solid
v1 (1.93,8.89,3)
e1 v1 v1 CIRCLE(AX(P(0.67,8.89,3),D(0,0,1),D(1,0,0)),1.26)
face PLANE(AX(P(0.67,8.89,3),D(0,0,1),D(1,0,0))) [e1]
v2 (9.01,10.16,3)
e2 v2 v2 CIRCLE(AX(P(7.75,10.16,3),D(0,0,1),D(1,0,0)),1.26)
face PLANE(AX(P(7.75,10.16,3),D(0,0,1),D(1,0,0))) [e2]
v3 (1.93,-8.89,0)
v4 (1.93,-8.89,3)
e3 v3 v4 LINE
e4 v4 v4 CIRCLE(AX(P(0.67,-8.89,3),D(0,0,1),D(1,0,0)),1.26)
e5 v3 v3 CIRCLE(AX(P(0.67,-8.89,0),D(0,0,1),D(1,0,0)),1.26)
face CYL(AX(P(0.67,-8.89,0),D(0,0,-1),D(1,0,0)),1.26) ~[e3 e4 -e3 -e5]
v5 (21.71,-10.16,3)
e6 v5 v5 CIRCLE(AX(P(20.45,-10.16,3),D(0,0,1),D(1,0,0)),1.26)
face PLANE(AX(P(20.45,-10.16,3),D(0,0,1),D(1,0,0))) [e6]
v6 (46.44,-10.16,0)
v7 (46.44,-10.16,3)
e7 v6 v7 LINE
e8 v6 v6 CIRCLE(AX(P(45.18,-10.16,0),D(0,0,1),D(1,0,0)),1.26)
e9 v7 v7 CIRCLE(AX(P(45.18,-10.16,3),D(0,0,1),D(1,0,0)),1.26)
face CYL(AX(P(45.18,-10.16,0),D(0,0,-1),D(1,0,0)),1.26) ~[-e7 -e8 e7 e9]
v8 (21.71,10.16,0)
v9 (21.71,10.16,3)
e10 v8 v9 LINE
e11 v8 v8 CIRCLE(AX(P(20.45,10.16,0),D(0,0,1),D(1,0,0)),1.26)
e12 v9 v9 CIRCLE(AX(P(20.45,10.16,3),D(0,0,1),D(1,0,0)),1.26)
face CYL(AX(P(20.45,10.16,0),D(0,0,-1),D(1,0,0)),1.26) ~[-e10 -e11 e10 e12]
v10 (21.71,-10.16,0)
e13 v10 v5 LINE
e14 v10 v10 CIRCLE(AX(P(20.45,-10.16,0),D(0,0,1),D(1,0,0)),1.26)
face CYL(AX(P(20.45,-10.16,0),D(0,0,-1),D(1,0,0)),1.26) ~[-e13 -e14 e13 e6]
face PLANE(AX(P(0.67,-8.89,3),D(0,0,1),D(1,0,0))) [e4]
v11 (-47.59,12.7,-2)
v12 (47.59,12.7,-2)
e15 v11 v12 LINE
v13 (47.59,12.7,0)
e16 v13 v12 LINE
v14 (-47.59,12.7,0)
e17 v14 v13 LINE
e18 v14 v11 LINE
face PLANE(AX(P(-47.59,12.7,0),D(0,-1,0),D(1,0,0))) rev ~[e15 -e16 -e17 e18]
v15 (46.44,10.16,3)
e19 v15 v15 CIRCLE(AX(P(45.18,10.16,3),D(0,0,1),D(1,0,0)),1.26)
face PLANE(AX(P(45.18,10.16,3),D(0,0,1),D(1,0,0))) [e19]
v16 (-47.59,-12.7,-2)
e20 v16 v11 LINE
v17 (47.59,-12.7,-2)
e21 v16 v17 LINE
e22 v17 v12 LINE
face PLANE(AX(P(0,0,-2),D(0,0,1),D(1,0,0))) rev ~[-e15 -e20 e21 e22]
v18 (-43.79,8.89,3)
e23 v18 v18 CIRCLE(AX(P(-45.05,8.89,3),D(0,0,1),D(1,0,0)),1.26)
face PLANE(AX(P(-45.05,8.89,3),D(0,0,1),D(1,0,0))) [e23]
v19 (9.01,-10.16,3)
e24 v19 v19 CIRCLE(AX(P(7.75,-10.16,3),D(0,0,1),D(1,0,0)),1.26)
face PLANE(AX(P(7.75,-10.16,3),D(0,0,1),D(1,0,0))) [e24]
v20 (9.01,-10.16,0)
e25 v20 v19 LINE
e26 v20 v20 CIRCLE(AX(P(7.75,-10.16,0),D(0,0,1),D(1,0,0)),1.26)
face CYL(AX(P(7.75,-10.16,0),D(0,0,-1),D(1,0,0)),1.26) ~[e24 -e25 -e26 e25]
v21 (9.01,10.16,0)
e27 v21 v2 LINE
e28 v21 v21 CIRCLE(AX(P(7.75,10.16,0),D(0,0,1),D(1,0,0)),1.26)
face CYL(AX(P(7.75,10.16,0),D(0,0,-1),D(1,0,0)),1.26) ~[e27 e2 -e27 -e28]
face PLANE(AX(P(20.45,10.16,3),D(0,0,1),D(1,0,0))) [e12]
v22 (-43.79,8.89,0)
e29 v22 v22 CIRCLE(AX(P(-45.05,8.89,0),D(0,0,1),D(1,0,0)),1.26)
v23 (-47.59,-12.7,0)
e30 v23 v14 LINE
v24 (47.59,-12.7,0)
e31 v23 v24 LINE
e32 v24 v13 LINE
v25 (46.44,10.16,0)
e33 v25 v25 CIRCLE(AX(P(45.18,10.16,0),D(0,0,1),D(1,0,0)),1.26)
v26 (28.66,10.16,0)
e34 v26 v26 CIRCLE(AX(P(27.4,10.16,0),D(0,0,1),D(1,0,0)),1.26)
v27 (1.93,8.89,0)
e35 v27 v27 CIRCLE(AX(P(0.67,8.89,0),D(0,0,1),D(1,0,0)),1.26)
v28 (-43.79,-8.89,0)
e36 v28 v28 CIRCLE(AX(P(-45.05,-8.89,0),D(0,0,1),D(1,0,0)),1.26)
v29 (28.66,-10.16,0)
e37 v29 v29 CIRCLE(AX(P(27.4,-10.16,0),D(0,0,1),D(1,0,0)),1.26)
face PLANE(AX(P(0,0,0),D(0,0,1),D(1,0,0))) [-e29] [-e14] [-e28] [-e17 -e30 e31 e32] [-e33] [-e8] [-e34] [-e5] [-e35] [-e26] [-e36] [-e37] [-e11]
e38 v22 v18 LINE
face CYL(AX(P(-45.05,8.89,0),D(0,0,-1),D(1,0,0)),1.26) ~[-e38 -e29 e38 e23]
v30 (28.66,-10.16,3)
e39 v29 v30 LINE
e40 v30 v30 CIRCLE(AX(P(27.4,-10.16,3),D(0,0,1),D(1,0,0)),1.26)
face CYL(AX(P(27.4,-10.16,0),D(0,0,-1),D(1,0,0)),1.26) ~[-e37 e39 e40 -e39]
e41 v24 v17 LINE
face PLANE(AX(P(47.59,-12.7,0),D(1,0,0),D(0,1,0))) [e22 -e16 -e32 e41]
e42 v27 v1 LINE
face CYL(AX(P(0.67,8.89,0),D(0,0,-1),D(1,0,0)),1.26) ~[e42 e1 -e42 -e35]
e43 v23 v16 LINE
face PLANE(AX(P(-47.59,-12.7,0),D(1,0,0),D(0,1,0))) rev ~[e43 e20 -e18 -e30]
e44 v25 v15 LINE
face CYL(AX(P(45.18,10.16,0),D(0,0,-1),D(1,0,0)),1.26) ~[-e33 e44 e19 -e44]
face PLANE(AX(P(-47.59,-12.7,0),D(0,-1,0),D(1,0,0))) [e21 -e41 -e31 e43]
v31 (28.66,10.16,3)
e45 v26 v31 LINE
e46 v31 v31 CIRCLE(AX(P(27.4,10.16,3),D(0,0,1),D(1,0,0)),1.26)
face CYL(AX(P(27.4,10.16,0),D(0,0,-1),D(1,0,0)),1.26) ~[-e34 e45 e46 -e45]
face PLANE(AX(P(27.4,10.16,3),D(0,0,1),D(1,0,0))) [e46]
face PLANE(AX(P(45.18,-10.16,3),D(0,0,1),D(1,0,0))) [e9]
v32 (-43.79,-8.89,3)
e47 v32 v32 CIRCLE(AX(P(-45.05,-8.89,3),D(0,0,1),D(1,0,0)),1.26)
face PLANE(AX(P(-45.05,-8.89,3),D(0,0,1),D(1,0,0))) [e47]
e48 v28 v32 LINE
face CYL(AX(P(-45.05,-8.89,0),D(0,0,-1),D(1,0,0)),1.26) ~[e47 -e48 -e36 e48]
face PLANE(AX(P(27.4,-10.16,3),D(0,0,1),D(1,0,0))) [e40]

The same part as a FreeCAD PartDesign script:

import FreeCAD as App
import Part
import Sketcher

V = App.Vector
Q = App.Units.Quantity


def add_polygon(sketch, points):
    """Adds a closed chain of lines whose ends are joined by coincident constraints."""
    first, n = sketch.GeometryCount, len(points)
    for a, b in zip(points, points[1:] + points[:1]):
        sketch.addGeometry(Part.LineSegment(App.Vector(*a, 0), App.Vector(*b, 0)), False)
    for i in range(n):
        sketch.addConstraint(Sketcher.Constraint("Coincident", first + i, 2, first + (i + 1) % n, 1))

doc = App.newDocument("Part")
body = doc.addObject("PartDesign::Body", "Body")

# Sketch on XY plane
sketch1 = doc.addObject("Sketcher::SketchObject", "Sketch")
body.addObject(sketch1)
sketch1.AttachmentSupport = (doc.XY_Plane, [""])
sketch1.MapMode = "FlatFace"
add_polygon(sketch1, [(-48, 13), (-48, -13), (48, -13), (48, 13)])  # lines 0-3
sketch1.addConstraint(Sketcher.Constraint("Vertical", 0))
sketch1.addConstraint(Sketcher.Constraint("Horizontal", 1))
sketch1.addConstraint(Sketcher.Constraint("Vertical", 2))
sketch1.addConstraint(Sketcher.Constraint("Horizontal", 3))
sketch1.addConstraint(Sketcher.Constraint("Symmetric", 0, 2, 2, 2, -1, 1))
sketch1.addConstraint(Sketcher.Constraint("DistanceY", 0, 2, 0, 1, Q("25.4 mm")))
sketch1.addConstraint(Sketcher.Constraint("DistanceX", 1, 1, 1, 2, Q("95.18 mm")))
pad1 = doc.addObject("PartDesign::Pad", "Pad")
body.addObject(pad1)
pad1.Profile = sketch1
pad1.Length = 2
pad1.Reversed = True

# Sketch on XY plane
sketch2 = doc.addObject("Sketcher::SketchObject", "Sketch001")
body.addObject(sketch2)
sketch2.AttachmentSupport = (doc.XY_Plane, [""])
sketch2.MapMode = "FlatFace"
sketch2.addGeometry(Part.Circle(V(-45, 8.9, 0), V(0, 0, 1), 1.3), False)
sketch2.addGeometry(Part.Circle(V(0.7, 8.9, 0), V(0, 0, 1), 1.3), False)
sketch2.addGeometry(Part.Circle(V(-45, -8.9, 0), V(0, 0, 1), 1.3), False)
sketch2.addGeometry(Part.Circle(V(0.7, -8.9, 0), V(0, 0, 1), 1.3), False)
sketch2.addGeometry(Part.Circle(V(27.4, 10.2, 0), V(0, 0, 1), 1.3), False)
sketch2.addGeometry(Part.Circle(V(27.4, -10.2, 0), V(0, 0, 1), 1.3), False)
sketch2.addGeometry(Part.Circle(V(45.2, 10.2, 0), V(0, 0, 1), 1.3), False)
sketch2.addGeometry(Part.Circle(V(45.2, -10.2, 0), V(0, 0, 1), 1.3), False)
sketch2.addGeometry(Part.Circle(V(7.8, 10.2, 0), V(0, 0, 1), 1.3), False)
sketch2.addGeometry(Part.Circle(V(20.4, 10.2, 0), V(0, 0, 1), 1.3), False)
sketch2.addGeometry(Part.Circle(V(7.8, -10.2, 0), V(0, 0, 1), 1.3), False)
sketch2.addGeometry(Part.Circle(V(20.4, -10.2, 0), V(0, 0, 1), 1.3), False)
sketch2.addConstraint(Sketcher.Constraint("Equal", 0, 1))
sketch2.addConstraint(Sketcher.Constraint("Equal", 1, 2))
sketch2.addConstraint(Sketcher.Constraint("Equal", 2, 3))
sketch2.addConstraint(Sketcher.Constraint("Equal", 3, 4))
sketch2.addConstraint(Sketcher.Constraint("Equal", 4, 5))
sketch2.addConstraint(Sketcher.Constraint("Equal", 5, 6))
sketch2.addConstraint(Sketcher.Constraint("Equal", 6, 7))
sketch2.addConstraint(Sketcher.Constraint("Equal", 7, 8))
sketch2.addConstraint(Sketcher.Constraint("Equal", 8, 9))
sketch2.addConstraint(Sketcher.Constraint("Equal", 9, 10))
sketch2.addConstraint(Sketcher.Constraint("Equal", 10, 11))
sketch2.addConstraint(Sketcher.Constraint("Symmetric", 0, 3, 2, 3, -1))
sketch2.addConstraint(Sketcher.Constraint("Symmetric", 1, 3, 3, 3, -1))
sketch2.addConstraint(Sketcher.Constraint("Symmetric", 4, 3, 5, 3, -1))
sketch2.addConstraint(Sketcher.Constraint("Symmetric", 6, 3, 7, 3, -1))
sketch2.addConstraint(Sketcher.Constraint("Symmetric", 8, 3, 10, 3, -1))
sketch2.addConstraint(Sketcher.Constraint("Symmetric", 9, 3, 11, 3, -1))
sketch2.addConstraint(Sketcher.Constraint("Horizontal", 0, 3, 1, 3))
sketch2.addConstraint(Sketcher.Constraint("Horizontal", 4, 3, 6, 3))
sketch2.addConstraint(Sketcher.Constraint("Horizontal", 6, 3, 8, 3))
sketch2.addConstraint(Sketcher.Constraint("Horizontal", 8, 3, 9, 3))
sketch2.addConstraint(Sketcher.Constraint("Diameter", 0, Q("2.52 mm")))
sketch2.addConstraint(Sketcher.Constraint("DistanceX", -1, 1, 4, 3, Q("27.4 mm")))
sketch2.addConstraint(Sketcher.Constraint("DistanceX", 8, 3, 9, 3, Q("12.7 mm")))
sketch2.addConstraint(Sketcher.Constraint("DistanceX", 0, 3, -1, 1, Q("45.05 mm")))
sketch2.addConstraint(Sketcher.Constraint("DistanceY", -1, 1, 0, 3, Q("8.89 mm")))
sketch2.addConstraint(Sketcher.Constraint("DistanceX", -1, 1, 1, 3, Q("0.67 mm")))
sketch2.addConstraint(Sketcher.Constraint("DistanceY", -1, 1, 4, 3, Q("10.16 mm")))
sketch2.addConstraint(Sketcher.Constraint("DistanceX", -1, 1, 6, 3, Q("45.18 mm")))
sketch2.addConstraint(Sketcher.Constraint("DistanceX", -1, 1, 8, 3, Q("7.75 mm")))
pad2 = doc.addObject("PartDesign::Pad", "Pad001")
body.addObject(pad2)
pad2.Profile = sketch2
pad2.Length = 3

doc.recompute()
